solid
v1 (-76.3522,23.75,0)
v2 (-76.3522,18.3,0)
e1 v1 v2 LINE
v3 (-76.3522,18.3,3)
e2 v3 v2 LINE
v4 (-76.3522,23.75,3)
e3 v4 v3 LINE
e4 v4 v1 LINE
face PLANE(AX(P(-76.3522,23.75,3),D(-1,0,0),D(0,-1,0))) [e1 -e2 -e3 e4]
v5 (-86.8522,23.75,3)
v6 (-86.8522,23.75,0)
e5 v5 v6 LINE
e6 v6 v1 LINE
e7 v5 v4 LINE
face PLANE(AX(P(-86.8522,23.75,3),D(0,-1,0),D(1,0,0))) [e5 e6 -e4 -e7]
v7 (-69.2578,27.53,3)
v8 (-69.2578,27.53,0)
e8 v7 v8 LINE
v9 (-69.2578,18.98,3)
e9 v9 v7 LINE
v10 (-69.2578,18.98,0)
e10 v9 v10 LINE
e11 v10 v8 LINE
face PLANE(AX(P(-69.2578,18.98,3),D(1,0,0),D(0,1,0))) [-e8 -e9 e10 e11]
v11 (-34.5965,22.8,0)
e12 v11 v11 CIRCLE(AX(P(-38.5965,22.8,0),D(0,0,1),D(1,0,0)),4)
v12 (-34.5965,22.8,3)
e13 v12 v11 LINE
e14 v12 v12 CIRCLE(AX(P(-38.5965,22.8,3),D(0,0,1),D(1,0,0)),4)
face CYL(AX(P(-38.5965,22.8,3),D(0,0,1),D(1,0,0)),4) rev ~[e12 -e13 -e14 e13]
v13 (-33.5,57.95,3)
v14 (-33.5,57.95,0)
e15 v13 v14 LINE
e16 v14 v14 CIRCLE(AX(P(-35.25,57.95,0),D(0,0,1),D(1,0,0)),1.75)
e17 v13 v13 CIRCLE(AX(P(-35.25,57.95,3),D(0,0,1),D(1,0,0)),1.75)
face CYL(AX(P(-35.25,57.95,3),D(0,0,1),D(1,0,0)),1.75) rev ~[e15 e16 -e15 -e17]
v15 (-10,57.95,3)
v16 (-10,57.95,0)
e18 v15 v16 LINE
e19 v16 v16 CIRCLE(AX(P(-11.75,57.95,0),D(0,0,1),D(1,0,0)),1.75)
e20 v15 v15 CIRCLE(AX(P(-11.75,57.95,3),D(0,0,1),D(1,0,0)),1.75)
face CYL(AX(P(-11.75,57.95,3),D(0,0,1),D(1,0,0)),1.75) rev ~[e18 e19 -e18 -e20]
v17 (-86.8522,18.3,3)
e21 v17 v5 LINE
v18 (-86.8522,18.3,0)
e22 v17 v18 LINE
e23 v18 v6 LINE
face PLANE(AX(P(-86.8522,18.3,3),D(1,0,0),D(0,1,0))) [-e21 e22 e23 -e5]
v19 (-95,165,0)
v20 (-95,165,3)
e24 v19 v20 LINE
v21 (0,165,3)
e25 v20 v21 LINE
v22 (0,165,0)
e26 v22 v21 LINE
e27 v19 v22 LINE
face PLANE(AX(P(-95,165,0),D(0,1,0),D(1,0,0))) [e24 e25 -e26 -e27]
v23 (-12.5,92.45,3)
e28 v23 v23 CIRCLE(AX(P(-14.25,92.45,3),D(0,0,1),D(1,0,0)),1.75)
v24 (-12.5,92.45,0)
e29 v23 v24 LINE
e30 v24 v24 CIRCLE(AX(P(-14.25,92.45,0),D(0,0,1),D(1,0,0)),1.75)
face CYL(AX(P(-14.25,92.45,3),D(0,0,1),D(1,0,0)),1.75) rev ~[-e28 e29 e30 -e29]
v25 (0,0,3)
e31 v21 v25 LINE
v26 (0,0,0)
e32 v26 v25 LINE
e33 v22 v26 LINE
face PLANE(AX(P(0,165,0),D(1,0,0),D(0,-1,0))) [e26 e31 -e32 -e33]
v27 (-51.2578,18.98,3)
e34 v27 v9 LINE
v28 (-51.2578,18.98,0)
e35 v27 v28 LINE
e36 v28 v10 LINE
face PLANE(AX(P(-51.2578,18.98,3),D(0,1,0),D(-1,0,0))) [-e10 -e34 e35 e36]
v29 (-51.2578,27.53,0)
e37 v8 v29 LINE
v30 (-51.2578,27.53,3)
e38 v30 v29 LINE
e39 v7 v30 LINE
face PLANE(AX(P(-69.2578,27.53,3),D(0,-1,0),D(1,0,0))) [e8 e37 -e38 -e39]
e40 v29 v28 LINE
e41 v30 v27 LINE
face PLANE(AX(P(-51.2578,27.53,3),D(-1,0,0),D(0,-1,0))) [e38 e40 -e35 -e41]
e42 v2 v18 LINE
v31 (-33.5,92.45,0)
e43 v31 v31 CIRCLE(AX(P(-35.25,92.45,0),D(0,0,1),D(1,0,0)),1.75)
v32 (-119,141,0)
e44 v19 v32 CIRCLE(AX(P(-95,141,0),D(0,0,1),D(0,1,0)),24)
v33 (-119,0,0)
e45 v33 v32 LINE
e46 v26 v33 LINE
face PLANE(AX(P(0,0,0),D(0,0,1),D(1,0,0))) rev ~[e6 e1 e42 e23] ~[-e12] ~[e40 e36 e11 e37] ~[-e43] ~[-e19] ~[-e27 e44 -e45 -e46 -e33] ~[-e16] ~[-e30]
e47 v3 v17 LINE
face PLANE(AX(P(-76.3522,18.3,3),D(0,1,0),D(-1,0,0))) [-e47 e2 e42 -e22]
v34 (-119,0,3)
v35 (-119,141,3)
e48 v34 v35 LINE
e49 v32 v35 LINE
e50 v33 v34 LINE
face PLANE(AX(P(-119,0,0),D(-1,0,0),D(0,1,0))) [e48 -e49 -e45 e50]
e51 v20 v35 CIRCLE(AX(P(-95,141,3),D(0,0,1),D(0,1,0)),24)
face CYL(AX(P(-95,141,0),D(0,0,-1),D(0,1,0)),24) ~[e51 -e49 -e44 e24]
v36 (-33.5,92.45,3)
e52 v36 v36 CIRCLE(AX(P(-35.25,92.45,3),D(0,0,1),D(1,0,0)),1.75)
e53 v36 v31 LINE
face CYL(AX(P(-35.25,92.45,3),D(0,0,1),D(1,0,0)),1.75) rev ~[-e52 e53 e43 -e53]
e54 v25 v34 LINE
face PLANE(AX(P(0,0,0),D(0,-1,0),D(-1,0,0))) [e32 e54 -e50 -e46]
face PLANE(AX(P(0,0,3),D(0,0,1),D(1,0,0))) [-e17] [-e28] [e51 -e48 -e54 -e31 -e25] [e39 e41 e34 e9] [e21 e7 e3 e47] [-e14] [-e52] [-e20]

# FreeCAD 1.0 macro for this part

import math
import FreeCAD as App
import Part
import Sketcher

V = App.Vector
Q = App.Units.Quantity

doc = App.newDocument("Part")
body = doc.addObject("PartDesign::Body", "Body")

# Sketch on XY plane
sketch1 = doc.addObject("Sketcher::SketchObject", "Sketch")
body.addObject(sketch1)
sketch1.AttachmentSupport = (doc.XY_Plane, [""])
sketch1.MapMode = "FlatFace"
sketch1.addGeometry(Part.LineSegment(V(-119, 0, 0), V(0, 0, 0)), False)
sketch1.addGeometry(Part.LineSegment(V(0, 0, 0), V(0, 165, 0)), False)
sketch1.addGeometry(Part.LineSegment(V(0, 165, 0), V(-95, 165, 0)), False)
sketch1.addGeometry(Part.ArcOfCircle(Part.Circle(V(-95, 141, 0), V(0, 0, 1), 24), math.radians(90), math.radians(180)), False)
sketch1.addGeometry(Part.LineSegment(V(-119, 141, 0), V(-119, 0, 0)), False)
sketch1.addConstraint(Sketcher.Constraint("Coincident", 0, 2, 1, 1))
sketch1.addConstraint(Sketcher.Constraint("Coincident", 1, 2, 2, 1))
sketch1.addConstraint(Sketcher.Constraint("Tangent", 2, 2, 3, 1))
sketch1.addConstraint(Sketcher.Constraint("Tangent", 3, 2, 4, 1))
sketch1.addConstraint(Sketcher.Constraint("Coincident", 4, 2, 0, 1))
sketch1.addConstraint(Sketcher.Constraint("Horizontal", 0))
sketch1.addConstraint(Sketcher.Constraint("Vertical", 1))
sketch1.addConstraint(Sketcher.Constraint("Horizontal", 2))
sketch1.addConstraint(Sketcher.Constraint("Vertical", 4))
sketch1.addConstraint(Sketcher.Constraint("Coincident", 0, 2, -1, 1))
sketch1.addConstraint(Sketcher.Constraint("Radius", 3, Q("24 mm")))
sketch1.addConstraint(Sketcher.Constraint("DistanceX", 0, 1, 0, 2, Q("119 mm")))
sketch1.addConstraint(Sketcher.Constraint("DistanceY", 1, 1, 1, 2, Q("165 mm")))
pad1 = doc.addObject("PartDesign::Pad", "Pad")
body.addObject(pad1)
pad1.Profile = sketch1
pad1.Length = 3

# Sketch on XY plane
sketch2 = doc.addObject("Sketcher::SketchObject", "Sketch001")
body.addObject(sketch2)
sketch2.AttachmentSupport = (doc.XY_Plane, [""])
sketch2.MapMode = "FlatFace"
sketch2.AttachmentOffset = App.Placement(V(0, 0, 3), App.Rotation())
sketch2.addGeometry(Part.Circle(V(-35.25, 92.45, 0), V(0, 0, 1), 1.75), False)
sketch2.addGeometry(Part.Circle(V(-14.25, 92.45, 0), V(0, 0, 1), 1.75), False)
sketch2.addGeometry(Part.Circle(V(-11.75, 57.95, 0), V(0, 0, 1), 1.75), False)
sketch2.addGeometry(Part.Circle(V(-35.25, 57.95, 0), V(0, 0, 1), 1.75), False)
sketch2.addGeometry(Part.Circle(V(-38.5965, 22.8, 0), V(0, 0, 1), 4), False)
sketch2.addGeometry(Part.LineSegment(V(-51.2578, 27.53, 0), V(-69.2578, 27.53, 0)), False)
sketch2.addGeometry(Part.LineSegment(V(-69.2578, 27.53, 0), V(-69.2578, 18.98, 0)), False)
sketch2.addGeometry(Part.LineSegment(V(-69.2578, 18.98, 0), V(-51.2578, 18.98, 0)), False)
sketch2.addGeometry(Part.LineSegment(V(-51.2578, 18.98, 0), V(-51.2578, 27.53, 0)), False)
sketch2.addGeometry(Part.LineSegment(V(-76.3522, 23.75, 0), V(-86.8522, 23.75, 0)), False)
sketch2.addGeometry(Part.LineSegment(V(-86.8522, 23.75, 0), V(-86.8522, 18.3, 0)), False)
sketch2.addGeometry(Part.LineSegment(V(-86.8522, 18.3, 0), V(-76.3522, 18.3, 0)), False)
sketch2.addGeometry(Part.LineSegment(V(-76.3522, 18.3, 0), V(-76.3522, 23.75, 0)), False)
sketch2.addConstraint(Sketcher.Constraint("Coincident", 5, 2, 6, 1))
sketch2.addConstraint(Sketcher.Constraint("Coincident", 6, 2, 7, 1))
sketch2.addConstraint(Sketcher.Constraint("Coincident", 7, 2, 8, 1))
sketch2.addConstraint(Sketcher.Constraint("Coincident", 8, 2, 5, 1))
sketch2.addConstraint(Sketcher.Constraint("Coincident", 9, 2, 10, 1))
sketch2.addConstraint(Sketcher.Constraint("Coincident", 10, 2, 11, 1))
sketch2.addConstraint(Sketcher.Constraint("Coincident", 11, 2, 12, 1))
sketch2.addConstraint(Sketcher.Constraint("Coincident", 12, 2, 9, 1))
sketch2.addConstraint(Sketcher.Constraint("Horizontal", 5))
sketch2.addConstraint(Sketcher.Constraint("Vertical", 6))
sketch2.addConstraint(Sketcher.Constraint("Horizontal", 7))
sketch2.addConstraint(Sketcher.Constraint("Vertical", 8))
sketch2.addConstraint(Sketcher.Constraint("Horizontal", 9))
sketch2.addConstraint(Sketcher.Constraint("Vertical", 10))
sketch2.addConstraint(Sketcher.Constraint("Horizontal", 11))
sketch2.addConstraint(Sketcher.Constraint("Vertical", 12))
sketch2.addConstraint(Sketcher.Constraint("Equal", 0, 1))
sketch2.addConstraint(Sketcher.Constraint("Equal", 1, 2))
sketch2.addConstraint(Sketcher.Constraint("Equal", 2, 3))
sketch2.addConstraint(Sketcher.Constraint("Horizontal", 0, 3, 1, 3))
sketch2.addConstraint(Sketcher.Constraint("Horizontal", 2, 3, 3, 3))
sketch2.addConstraint(Sketcher.Constraint("Vertical", 0, 3, 3, 3))
sketch2.addConstraint(Sketcher.Constraint("Diameter", 4, Q("8 mm")))
sketch2.addConstraint(Sketcher.Constraint("Diameter", 0, Q("3.5 mm")))
sketch2.addConstraint(Sketcher.Constraint("DistanceX", 5, 2, 5, 1, Q("18 mm")))
sketch2.addConstraint(Sketcher.Constraint("DistanceX", 0, 3, -1, 1, Q("35.25 mm")))
sketch2.addConstraint(Sketcher.Constraint("DistanceX", 1, 3, -1, 1, Q("14.25 mm")))
sketch2.addConstraint(Sketcher.Constraint("DistanceX", 2, 3, -1, 1, Q("11.75 mm")))
sketch2.addConstraint(Sketcher.Constraint("DistanceX", 9, 2, 9, 1, Q("10.5 mm")))
sketch2.addConstraint(Sketcher.Constraint("DistanceY", 6, 2, 6, 1, Q("8.55 mm")))
sketch2.addConstraint(Sketcher.Constraint("DistanceY", 10, 2, 10, 1, Q("5.45 mm")))
sketch2.addConstraint(Sketcher.Constraint("DistanceX", 4, 3, -1, 1, Q("38.5965 mm")))
sketch2.addConstraint(Sketcher.Constraint("DistanceY", -1, 1, 4, 3, Q("22.8 mm")))
sketch2.addConstraint(Sketcher.Constraint("DistanceX", 9, 2, -1, 1, Q("86.8522 mm")))
sketch2.addConstraint(Sketcher.Constraint("DistanceY", -1, 1, 10, 2, Q("18.3 mm")))
sketch2.addConstraint(Sketcher.Constraint("DistanceY", 2, 3, 1, 3, Q("34.5 mm")))
sketch2.addConstraint(Sketcher.Constraint("DistanceY", -1, 1, 0, 3, Q("92.45 mm")))
sketch2.addConstraint(Sketcher.Constraint("DistanceY", -1, 1, 5, 2, Q("27.53 mm")))
sketch2.addConstraint(Sketcher.Constraint("DistanceX", 5, 2, -1, 1, Q("69.2578 mm")))
pocket1 = doc.addObject("PartDesign::Pocket", "Pocket")
body.addObject(pocket1)
pocket1.Profile = sketch2
pocket1.Type = "ThroughAll"

doc.recompute()
